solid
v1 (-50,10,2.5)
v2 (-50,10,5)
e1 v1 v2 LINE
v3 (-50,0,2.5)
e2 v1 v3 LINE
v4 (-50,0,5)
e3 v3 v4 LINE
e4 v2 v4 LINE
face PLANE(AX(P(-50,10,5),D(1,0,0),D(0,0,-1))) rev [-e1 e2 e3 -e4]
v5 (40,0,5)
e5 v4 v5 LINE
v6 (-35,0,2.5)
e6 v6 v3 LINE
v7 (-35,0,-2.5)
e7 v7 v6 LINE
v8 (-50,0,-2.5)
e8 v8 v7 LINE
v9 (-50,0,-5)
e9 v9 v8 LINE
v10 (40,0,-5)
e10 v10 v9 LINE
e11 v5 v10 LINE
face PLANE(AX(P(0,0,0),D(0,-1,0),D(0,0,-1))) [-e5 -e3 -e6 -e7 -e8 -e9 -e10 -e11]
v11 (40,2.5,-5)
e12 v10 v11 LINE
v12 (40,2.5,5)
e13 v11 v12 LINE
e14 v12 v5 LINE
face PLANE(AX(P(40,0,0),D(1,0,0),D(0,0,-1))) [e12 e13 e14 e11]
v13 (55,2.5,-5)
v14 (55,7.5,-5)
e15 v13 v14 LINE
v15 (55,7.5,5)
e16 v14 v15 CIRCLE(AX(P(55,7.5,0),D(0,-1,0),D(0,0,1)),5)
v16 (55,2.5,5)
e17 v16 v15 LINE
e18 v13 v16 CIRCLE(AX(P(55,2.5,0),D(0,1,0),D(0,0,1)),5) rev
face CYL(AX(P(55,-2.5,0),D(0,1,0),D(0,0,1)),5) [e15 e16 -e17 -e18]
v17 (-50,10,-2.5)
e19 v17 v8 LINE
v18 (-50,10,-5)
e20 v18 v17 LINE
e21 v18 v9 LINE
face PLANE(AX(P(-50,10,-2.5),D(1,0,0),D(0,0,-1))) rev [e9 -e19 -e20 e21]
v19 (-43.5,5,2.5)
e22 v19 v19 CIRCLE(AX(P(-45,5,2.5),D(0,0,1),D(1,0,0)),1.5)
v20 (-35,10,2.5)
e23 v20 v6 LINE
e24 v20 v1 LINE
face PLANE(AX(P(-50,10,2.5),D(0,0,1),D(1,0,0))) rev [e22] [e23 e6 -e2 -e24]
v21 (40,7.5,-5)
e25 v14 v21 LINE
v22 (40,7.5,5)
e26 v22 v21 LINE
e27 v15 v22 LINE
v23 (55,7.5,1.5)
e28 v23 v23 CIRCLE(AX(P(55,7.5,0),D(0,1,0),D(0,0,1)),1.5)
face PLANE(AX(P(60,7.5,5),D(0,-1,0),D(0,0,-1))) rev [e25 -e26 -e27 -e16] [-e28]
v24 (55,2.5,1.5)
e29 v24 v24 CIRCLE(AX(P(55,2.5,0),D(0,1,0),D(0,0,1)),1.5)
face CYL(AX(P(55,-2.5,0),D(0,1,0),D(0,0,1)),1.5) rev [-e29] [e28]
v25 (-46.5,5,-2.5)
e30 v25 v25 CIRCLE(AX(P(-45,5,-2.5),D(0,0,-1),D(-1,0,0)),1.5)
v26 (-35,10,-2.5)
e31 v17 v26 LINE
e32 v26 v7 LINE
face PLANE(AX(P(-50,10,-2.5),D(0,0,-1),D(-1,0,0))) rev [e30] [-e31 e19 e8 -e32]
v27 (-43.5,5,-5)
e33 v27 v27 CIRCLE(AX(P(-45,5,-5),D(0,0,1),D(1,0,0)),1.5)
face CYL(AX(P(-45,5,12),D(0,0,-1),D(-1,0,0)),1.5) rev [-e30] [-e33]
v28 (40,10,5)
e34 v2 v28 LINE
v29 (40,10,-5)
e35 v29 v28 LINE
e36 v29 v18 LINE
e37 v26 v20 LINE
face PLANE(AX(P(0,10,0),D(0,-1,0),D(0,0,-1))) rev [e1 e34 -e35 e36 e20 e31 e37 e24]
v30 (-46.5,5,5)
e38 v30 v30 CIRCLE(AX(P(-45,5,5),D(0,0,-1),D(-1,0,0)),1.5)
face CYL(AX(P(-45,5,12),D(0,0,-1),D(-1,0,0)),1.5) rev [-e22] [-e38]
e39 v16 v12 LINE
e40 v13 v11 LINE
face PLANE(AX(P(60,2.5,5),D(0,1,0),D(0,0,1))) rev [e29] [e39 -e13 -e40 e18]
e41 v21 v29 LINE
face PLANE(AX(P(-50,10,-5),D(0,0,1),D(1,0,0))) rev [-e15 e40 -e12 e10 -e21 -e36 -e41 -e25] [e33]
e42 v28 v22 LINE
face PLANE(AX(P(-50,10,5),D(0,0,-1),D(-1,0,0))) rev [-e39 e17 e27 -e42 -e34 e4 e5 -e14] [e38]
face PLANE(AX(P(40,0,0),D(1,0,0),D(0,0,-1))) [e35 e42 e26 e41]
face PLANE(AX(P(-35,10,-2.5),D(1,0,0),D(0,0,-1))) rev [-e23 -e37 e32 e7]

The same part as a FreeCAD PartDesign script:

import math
import FreeCAD as App
import Part
import Sketcher


def add_polygon(sketch, points):
    """Adds a closed chain of lines whose ends are joined by coincident constraints."""
    first, n = sketch.GeometryCount, len(points)
    for a, b in zip(points, points[1:] + points[:1]):
        sketch.addGeometry(Part.LineSegment(App.Vector(*a, 0), App.Vector(*b, 0)), False)
    for i in range(n):
        sketch.addConstraint(Sketcher.Constraint("Coincident", first + i, 2, first + (i + 1) % n, 1))

doc = App.newDocument("Part")
body = doc.addObject("PartDesign::Body", "Body")

# Sketch on XZ plane
sketch1 = body.newObject("Sketcher::SketchObject", "Sketch")
sketch1.AttachmentSupport = (doc.getObject("XZ_Plane"), [""])
sketch1.MapMode = "FlatFace"
add_polygon(sketch1, [(-50, -5), (-50, -2.5), (-35, -2.5), (-35, 2.5), (-50, 2.5), (-50, 5), (50, 5), (50, -5)])  # lines 0-7
sketch1.addConstraint(Sketcher.Constraint("Vertical", 0))
sketch1.addConstraint(Sketcher.Constraint("Horizontal", 1))
sketch1.addConstraint(Sketcher.Constraint("Vertical", 2))
sketch1.addConstraint(Sketcher.Constraint("Horizontal", 3))
sketch1.addConstraint(Sketcher.Constraint("Vertical", 4))
sketch1.addConstraint(Sketcher.Constraint("Horizontal", 5))
sketch1.addConstraint(Sketcher.Constraint("Vertical", 6))
sketch1.addConstraint(Sketcher.Constraint("Horizontal", 7))
sketch1.addConstraint(Sketcher.Constraint("Symmetric", 4, 2, 6, 2, -1, 1))
sketch1.addConstraint(Sketcher.Constraint("Symmetric", 0, 2, 3, 2, -1))
sketch1.addConstraint(Sketcher.Constraint("DistanceX", 1, 1, 1, 2, 15.0))
sketch1.addConstraint(Sketcher.Constraint("DistanceX", 5, 1, 5, 2, 100.0))
sketch1.addConstraint(Sketcher.Constraint("DistanceY", 2, 1, 2, 2, 5.0))
sketch1.addConstraint(Sketcher.Constraint("DistanceY", 6, 2, 6, 1, 10.0))
pad1 = body.newObject("PartDesign::Pad", "Pad")
pad1.Profile = sketch1
pad1.Length = 10
pad1.Reversed = True

# Sketch on YZ plane
sketch2 = body.newObject("Sketcher::SketchObject", "Sketch001")
sketch2.AttachmentSupport = (doc.getObject("YZ_Plane"), [""])
sketch2.MapMode = "FlatFace"
sketch2.AttachmentOffset = App.Placement(App.Vector(0, 0, 50), App.Rotation())
add_polygon(sketch2, [(7.5, 5), (2.5, 5), (2.5, -5), (7.5, -5)])  # lines 0-3
sketch2.addConstraint(Sketcher.Constraint("Horizontal", 0))
sketch2.addConstraint(Sketcher.Constraint("Vertical", 1))
sketch2.addConstraint(Sketcher.Constraint("Horizontal", 2))
sketch2.addConstraint(Sketcher.Constraint("Vertical", 3))
sketch2.addConstraint(Sketcher.Constraint("DistanceX", 0, 2, 0, 1, 5.0))
sketch2.addConstraint(Sketcher.Constraint("DistanceY", 1, 2, 1, 1, 10.0))
sketch2.addConstraint(Sketcher.Constraint("DistanceY", -1, 1, 0, 2, 5.0))
sketch2.addConstraint(Sketcher.Constraint("DistanceX", -1, 1, 0, 2, 2.5))
pad2 = body.newObject("PartDesign::Pad", "Pad001")
pad2.Profile = sketch2
pad2.Length = 10

# Sketch on XZ plane
sketch3 = body.newObject("Sketcher::SketchObject", "Sketch002")
sketch3.AttachmentSupport = (doc.getObject("XZ_Plane"), [""])
sketch3.MapMode = "FlatFace"
sketch3.AttachmentOffset = App.Placement(App.Vector(0, 0, -7.5), App.Rotation())
sketch3.addGeometry(Part.Circle(App.Vector(55, 0, 0), App.Vector(0, 0, 1), 1.5), False)
sketch3.addGeometry(Part.LineSegment(App.Vector(55, -11.02923, 0), App.Vector(55, -5, 0)), False)
sketch3.addGeometry(Part.ArcOfCircle(Part.Circle(App.Vector(55, 0, 0), App.Vector(0, 0, 1), 5), math.radians(-90), math.radians(90)), False)
sketch3.addGeometry(Part.LineSegment(App.Vector(55, 5, 0), App.Vector(58.757445, 12.901677, 0)), False)
sketch3.addGeometry(Part.LineSegment(App.Vector(58.757445, 12.901677, 0), App.Vector(66.142652, 12.901677, 0)), False)
sketch3.addGeometry(Part.LineSegment(App.Vector(66.142652, 12.901677, 0), App.Vector(66.142652, -11.02923, 0)), False)
sketch3.addGeometry(Part.LineSegment(App.Vector(66.142652, -11.02923, 0), App.Vector(55, -11.02923, 0)), False)
sketch3.addConstraint(Sketcher.Constraint("Coincident", 1, 2, 2, 1))
sketch3.addConstraint(Sketcher.Constraint("Coincident", 2, 2, 3, 1))
sketch3.addConstraint(Sketcher.Constraint("Coincident", 3, 2, 4, 1))
sketch3.addConstraint(Sketcher.Constraint("Coincident", 4, 2, 5, 1))
sketch3.addConstraint(Sketcher.Constraint("Coincident", 5, 2, 6, 1))
sketch3.addConstraint(Sketcher.Constraint("Coincident", 6, 2, 1, 1))
sketch3.addConstraint(Sketcher.Constraint("Vertical", 1))
sketch3.addConstraint(Sketcher.Constraint("Horizontal", 4))
sketch3.addConstraint(Sketcher.Constraint("Vertical", 5))
sketch3.addConstraint(Sketcher.Constraint("Horizontal", 6))
sketch3.addConstraint(Sketcher.Constraint("Coincident", 2, 3, 0, 3))
sketch3.addConstraint(Sketcher.Constraint("Symmetric", 1, 2, 2, 2, -1))
sketch3.addConstraint(Sketcher.Constraint("Vertical", 2, 3, 1, 2))
sketch3.addConstraint(Sketcher.Constraint("Diameter", 0, 3.0))
sketch3.addConstraint(Sketcher.Constraint("Radius", 2, 5.0))
sketch3.addConstraint(Sketcher.Constraint("DistanceX", -1, 1, 0, 3, 55.0))
sketch3.addConstraint(Sketcher.Constraint("DistanceX", 6, 2, 6, 1, 11.142652))
sketch3.addConstraint(Sketcher.Constraint("DistanceY", 1, 1, 1, 2, 6.02923))
sketch3.addConstraint(Sketcher.Constraint("DistanceX", 4, 1, 4, 2, 7.385206))
sketch3.addConstraint(Sketcher.Constraint("DistanceY", 5, 2, 5, 1, 23.930907))
pocket1 = body.newObject("PartDesign::Pocket", "Pocket")
pocket1.Profile = sketch3
pocket1.Length = 10
pocket1.Reversed = True

# Sketch on XY plane
sketch4 = body.newObject("Sketcher::SketchObject", "Sketch003")
sketch4.AttachmentSupport = (doc.getObject("XY_Plane"), [""])
sketch4.MapMode = "FlatFace"
sketch4.AttachmentOffset = App.Placement(App.Vector(0, 0, 2.5), App.Rotation())
sketch4.addGeometry(Part.Circle(App.Vector(-45, 5, 0), App.Vector(0, 0, 1), 1.5), False)
sketch4.addConstraint(Sketcher.Constraint("Diameter", 0, 3.0))
sketch4.addConstraint(Sketcher.Constraint("DistanceX", 0, 3, -1, 1, 45.0))
sketch4.addConstraint(Sketcher.Constraint("DistanceY", -1, 1, 0, 3, 5.0))
pocket2 = body.newObject("PartDesign::Pocket", "Pocket001")
pocket2.Profile = sketch4
pocket2.Length = 19
pocket2.Midplane = True

# Sketch on YZ plane
sketch5 = body.newObject("Sketcher::SketchObject", "Sketch004")
sketch5.AttachmentSupport = (doc.getObject("YZ_Plane"), [""])
sketch5.MapMode = "FlatFace"
sketch5.AttachmentOffset = App.Placement(App.Vector(0, 0, 50), App.Rotation())
add_polygon(sketch5, [(10, 5), (7.5, 5), (7.5, -5), (10, -5)])  # lines 0-3
add_polygon(sketch5, [(2.5, 5), (0, 5), (0, -5), (2.5, -5)])  # lines 4-7
sketch5.addConstraint(Sketcher.Constraint("Horizontal", 0))
sketch5.addConstraint(Sketcher.Constraint("Vertical", 1))
sketch5.addConstraint(Sketcher.Constraint("Horizontal", 2))
sketch5.addConstraint(Sketcher.Constraint("Vertical", 3))
sketch5.addConstraint(Sketcher.Constraint("Horizontal", 4))
sketch5.addConstraint(Sketcher.Constraint("Vertical", 5))
sketch5.addConstraint(Sketcher.Constraint("Horizontal", 6))
sketch5.addConstraint(Sketcher.Constraint("Vertical", 7))
sketch5.addConstraint(Sketcher.Constraint("Symmetric", 4, 2, 5, 2, -1, 1))
sketch5.addConstraint(Sketcher.Constraint("Horizontal", 3, 2, 4, 2))
sketch5.addConstraint(Sketcher.Constraint("Horizontal", 2, 2, 5, 2))
sketch5.addConstraint(Sketcher.Constraint("Equal", 2, 4))
sketch5.addConstraint(Sketcher.Constraint("DistanceY", 1, 2, 1, 1, 10.0))
sketch5.addConstraint(Sketcher.Constraint("DistanceX", 0, 2, 0, 1, 2.5))
sketch5.addConstraint(Sketcher.Constraint("DistanceX", -1, 1, 2, 2, 10.0))
pocket3 = body.newObject("PartDesign::Pocket", "Pocket002")
pocket3.Profile = sketch5
pocket3.Length = 10

doc.recompute()
